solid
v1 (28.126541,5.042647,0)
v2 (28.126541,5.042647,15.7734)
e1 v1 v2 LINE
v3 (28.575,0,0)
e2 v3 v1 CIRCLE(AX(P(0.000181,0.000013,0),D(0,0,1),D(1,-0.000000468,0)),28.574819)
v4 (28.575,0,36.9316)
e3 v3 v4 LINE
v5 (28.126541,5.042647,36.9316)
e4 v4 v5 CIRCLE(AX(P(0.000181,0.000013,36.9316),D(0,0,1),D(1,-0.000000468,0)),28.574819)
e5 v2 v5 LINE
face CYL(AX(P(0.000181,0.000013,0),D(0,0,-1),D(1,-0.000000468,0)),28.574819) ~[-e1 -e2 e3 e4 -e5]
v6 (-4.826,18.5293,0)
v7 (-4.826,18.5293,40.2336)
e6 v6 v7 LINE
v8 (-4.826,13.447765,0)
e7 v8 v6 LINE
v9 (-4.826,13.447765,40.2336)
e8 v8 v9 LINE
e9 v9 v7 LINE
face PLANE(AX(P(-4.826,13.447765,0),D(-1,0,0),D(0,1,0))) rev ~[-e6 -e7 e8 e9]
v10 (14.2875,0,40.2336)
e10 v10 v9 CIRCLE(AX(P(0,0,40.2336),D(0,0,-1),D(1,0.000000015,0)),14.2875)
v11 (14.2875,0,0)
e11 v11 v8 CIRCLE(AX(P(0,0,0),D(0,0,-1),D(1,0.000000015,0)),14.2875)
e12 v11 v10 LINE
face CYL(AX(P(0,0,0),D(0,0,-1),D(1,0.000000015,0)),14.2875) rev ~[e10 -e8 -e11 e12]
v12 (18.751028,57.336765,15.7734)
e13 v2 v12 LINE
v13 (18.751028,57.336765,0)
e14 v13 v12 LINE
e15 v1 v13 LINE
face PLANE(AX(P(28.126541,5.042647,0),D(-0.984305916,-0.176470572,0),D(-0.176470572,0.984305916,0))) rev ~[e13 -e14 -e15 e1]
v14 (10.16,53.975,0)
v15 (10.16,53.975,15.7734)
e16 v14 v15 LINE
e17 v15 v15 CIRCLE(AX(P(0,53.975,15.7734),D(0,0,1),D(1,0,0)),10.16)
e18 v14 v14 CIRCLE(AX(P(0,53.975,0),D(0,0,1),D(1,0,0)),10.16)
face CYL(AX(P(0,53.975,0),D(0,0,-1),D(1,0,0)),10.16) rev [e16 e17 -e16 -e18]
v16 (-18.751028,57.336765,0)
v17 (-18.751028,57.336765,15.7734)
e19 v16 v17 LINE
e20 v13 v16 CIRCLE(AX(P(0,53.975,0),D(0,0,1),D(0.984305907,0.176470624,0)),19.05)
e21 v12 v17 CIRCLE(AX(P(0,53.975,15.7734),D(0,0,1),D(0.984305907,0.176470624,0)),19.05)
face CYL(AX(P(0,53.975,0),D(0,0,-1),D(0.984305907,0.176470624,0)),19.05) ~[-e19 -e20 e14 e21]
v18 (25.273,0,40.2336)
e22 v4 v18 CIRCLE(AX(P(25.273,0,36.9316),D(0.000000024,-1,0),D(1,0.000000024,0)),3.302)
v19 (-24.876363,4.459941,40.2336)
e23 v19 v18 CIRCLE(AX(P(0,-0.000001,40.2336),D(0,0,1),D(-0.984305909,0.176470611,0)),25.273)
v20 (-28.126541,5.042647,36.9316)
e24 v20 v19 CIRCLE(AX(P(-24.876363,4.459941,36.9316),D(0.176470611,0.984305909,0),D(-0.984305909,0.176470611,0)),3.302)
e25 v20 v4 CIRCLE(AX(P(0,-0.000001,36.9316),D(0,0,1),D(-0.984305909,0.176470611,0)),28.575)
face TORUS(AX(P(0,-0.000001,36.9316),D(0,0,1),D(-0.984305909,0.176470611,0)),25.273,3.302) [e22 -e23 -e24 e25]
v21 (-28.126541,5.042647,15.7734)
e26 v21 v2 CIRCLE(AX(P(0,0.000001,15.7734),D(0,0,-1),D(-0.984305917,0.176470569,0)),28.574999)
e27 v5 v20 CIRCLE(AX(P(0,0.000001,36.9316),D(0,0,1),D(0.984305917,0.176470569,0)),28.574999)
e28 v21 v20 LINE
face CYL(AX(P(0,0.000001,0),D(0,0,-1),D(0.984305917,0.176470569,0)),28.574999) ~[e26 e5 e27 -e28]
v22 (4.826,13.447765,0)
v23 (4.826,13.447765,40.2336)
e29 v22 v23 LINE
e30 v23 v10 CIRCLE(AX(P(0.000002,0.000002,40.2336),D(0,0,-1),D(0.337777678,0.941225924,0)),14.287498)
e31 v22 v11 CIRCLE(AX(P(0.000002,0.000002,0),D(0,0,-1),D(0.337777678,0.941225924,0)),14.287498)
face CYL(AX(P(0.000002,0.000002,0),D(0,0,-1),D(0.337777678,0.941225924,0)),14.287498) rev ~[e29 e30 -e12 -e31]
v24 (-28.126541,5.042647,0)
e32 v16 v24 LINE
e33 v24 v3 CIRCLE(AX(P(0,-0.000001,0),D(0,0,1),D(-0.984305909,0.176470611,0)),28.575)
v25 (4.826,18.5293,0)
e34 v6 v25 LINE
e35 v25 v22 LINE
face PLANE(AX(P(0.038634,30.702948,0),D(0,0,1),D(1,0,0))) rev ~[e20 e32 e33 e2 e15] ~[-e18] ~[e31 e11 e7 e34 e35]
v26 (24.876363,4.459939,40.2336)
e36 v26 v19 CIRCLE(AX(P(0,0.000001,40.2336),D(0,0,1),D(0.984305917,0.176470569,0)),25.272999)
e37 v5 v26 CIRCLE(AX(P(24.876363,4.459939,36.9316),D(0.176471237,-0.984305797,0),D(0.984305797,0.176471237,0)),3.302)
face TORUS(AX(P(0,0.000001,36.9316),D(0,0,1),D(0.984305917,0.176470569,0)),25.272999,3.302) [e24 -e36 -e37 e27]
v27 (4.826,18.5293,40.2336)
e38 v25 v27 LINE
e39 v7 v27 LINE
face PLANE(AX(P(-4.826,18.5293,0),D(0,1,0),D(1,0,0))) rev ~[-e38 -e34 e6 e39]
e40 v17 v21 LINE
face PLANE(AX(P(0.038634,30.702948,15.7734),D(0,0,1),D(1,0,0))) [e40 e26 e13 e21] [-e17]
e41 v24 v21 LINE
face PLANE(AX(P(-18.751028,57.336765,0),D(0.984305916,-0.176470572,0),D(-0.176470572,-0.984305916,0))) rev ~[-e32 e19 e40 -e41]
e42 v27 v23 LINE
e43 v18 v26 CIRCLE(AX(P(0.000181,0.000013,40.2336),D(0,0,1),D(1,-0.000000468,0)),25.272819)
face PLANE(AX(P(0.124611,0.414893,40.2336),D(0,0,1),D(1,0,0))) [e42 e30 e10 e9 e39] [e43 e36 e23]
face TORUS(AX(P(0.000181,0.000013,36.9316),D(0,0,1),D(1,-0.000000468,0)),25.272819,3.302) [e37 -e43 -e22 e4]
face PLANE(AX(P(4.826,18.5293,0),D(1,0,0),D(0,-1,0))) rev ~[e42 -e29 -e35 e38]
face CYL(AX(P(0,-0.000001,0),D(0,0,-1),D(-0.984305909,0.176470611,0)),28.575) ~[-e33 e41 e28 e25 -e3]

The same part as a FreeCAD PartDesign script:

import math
import FreeCAD as App
import Part
import Sketcher
Q = App.Units.Quantity


def edges_at(feature, points):
    """Names of the edges that pass closest to the given points."""
    edges = feature.Shape.Edges
    near = lambda p: min(range(len(edges)), key=lambda i: edges[i].distToShape(Part.Vertex(*p))[0])
    return sorted({f"Edge{near(p) + 1}" for p in points})

doc = App.newDocument("Part")
body = doc.addObject("PartDesign::Body", "Body")

# Sketch on XY plane
sketch1 = body.newObject("Sketcher::SketchObject", "Sketch")
sketch1.AttachmentSupport = (doc.getObject("XY_Plane"), [""])
sketch1.MapMode = "FlatFace"
sketch1.addGeometry([
    Part.ArcOfCircle(Part.Circle(App.Vector(0, -0.000001, 0), App.Vector(0, 0, 1), 28.575), math.radians(169.83575), math.radians(360.000001)),  # 0
    Part.ArcOfCircle(Part.Circle(App.Vector(0.000181, 0.000013, 0), App.Vector(0, 0, 1), 28.574819), math.radians(-0.000027), math.radians(10.164286)),  # 1
    Part.ArcOfCircle(Part.Circle(App.Vector(0, 0.000001, 0), App.Vector(0, 0, 1), 28.574999), math.radians(10.164248), math.radians(169.835752)),  # 2
    Part.LineSegment(App.Vector(4.826, 18.5293, 0), App.Vector(4.826, 13.447765, 0)),  # 3
    Part.ArcOfCircle(Part.Circle(App.Vector(0.000002, 0.000002, 0), App.Vector(0, 0, 1), 14.287498), math.radians(-0.000007), math.radians(70.258464)),  # 4
    Part.ArcOfCircle(Part.Circle(App.Vector(0, 0, 0), App.Vector(0, 0, 1), 14.2875), math.radians(109.741541), math.radians(360.000001)),  # 5
    Part.LineSegment(App.Vector(-4.826, 13.447765, 0), App.Vector(-4.826, 18.5293, 0)),  # 6
    Part.LineSegment(App.Vector(-4.826, 18.5293, 0), App.Vector(4.826, 18.5293, 0)),  # 7
], False)
sketch1.addConstraint([
    Sketcher.Constraint("Coincident", 0, 2, 1, 1),
    Sketcher.Constraint("Coincident", 1, 2, 2, 1),
    Sketcher.Constraint("Coincident", 2, 2, 0, 1),
    Sketcher.Constraint("Coincident", 3, 2, 4, 2),
    Sketcher.Constraint("Coincident", 4, 1, 5, 2),
    Sketcher.Constraint("Coincident", 5, 1, 6, 1),
    Sketcher.Constraint("Coincident", 6, 2, 7, 1),
    Sketcher.Constraint("Coincident", 7, 2, 3, 1),
    Sketcher.Constraint("Vertical", 3),
    Sketcher.Constraint("Vertical", 6),
    Sketcher.Constraint("Horizontal", 7),
    Sketcher.Constraint("Coincident", 0, 3, -1, 1),
    Sketcher.Constraint("Coincident", 2, 3, -1, 1),
    Sketcher.Constraint("Coincident", 4, 3, -1, 1),
    Sketcher.Constraint("Coincident", 5, 3, -1, 1),
    Sketcher.Constraint("PointOnObject", 0, 2, -1),
    Sketcher.Constraint("PointOnObject", 4, 1, -1),
    Sketcher.Constraint("Radius", 0, Q("1.125 in")),
    Sketcher.Constraint("Radius", 4, Q("0.5624999 in")),
    Sketcher.Constraint("DistanceX", 7, 1, 7, 2, Q("0.38 in")),
    Sketcher.Constraint("DistanceX", -1, 1, 3, 2, Q("0.19 in")),
    Sketcher.Constraint("Radius", 1, Q("28.574819 mm")),
    Sketcher.Constraint("DistanceY", -1, 1, 6, 2, Q("0.7295 in")),
    Sketcher.Constraint("DistanceX", -1, 1, 1, 2, Q("28.126541 mm")),
    Sketcher.Constraint("DistanceX", 2, 2, -1, 1, Q("28.126541 mm")),
])
pad1 = body.newObject("PartDesign::Pad", "Pad")
pad1.Profile = sketch1
pad1.Length = Q("1.584 in")
doc.recompute()

fillet = body.newObject("PartDesign::Fillet", "Fillet")
fillet.Base = (pad1, edges_at(pad1, [(-2.531, -28.463, 40.234)]))
fillet.Radius = Q("0.13 in")

# Sketch on XY plane
sketch2 = body.newObject("Sketcher::SketchObject", "Sketch001")
sketch2.AttachmentSupport = (doc.getObject("XY_Plane"), [""])
sketch2.MapMode = "FlatFace"
sketch2.addGeometry([
    Part.ArcOfCircle(Part.Circle(App.Vector(0, 0, 0), App.Vector(0, 0, 1), 29), math.radians(10), math.radians(170)),  # 0
    Part.LineSegment(App.Vector(28, 5, 0), App.Vector(19, 57, 0)),  # 1
    Part.ArcOfCircle(Part.Circle(App.Vector(0, 54, 0), App.Vector(0, 0, 1), 19), math.radians(10), math.radians(170)),  # 2
    Part.LineSegment(App.Vector(-19, 57, 0), App.Vector(-28, 5, 0)),  # 3
    Part.Circle(App.Vector(0, 54, 0), App.Vector(0, 0, 1), 10),  # 4
], False)
sketch2.addConstraint([
    Sketcher.Constraint("Tangent", 0, 1, 1, 1),
    Sketcher.Constraint("Tangent", 1, 2, 2, 1),
    Sketcher.Constraint("Tangent", 2, 2, 3, 1),
    Sketcher.Constraint("Tangent", 3, 2, 0, 2),
    Sketcher.Constraint("Coincident", 0, 3, -1, 1),
    Sketcher.Constraint("Coincident", 4, 3, 2, 3),
    Sketcher.Constraint("PointOnObject", 2, 3, -2),
    Sketcher.Constraint("Diameter", 4, Q("0.8 in")),
    Sketcher.Constraint("Radius", 2, Q("0.75 in")),
    Sketcher.Constraint("Radius", 0, Q("1.125 in")),
    Sketcher.Constraint("DistanceY", -1, 1, 2, 3, Q("2.125 in")),
])
pad2 = body.newObject("PartDesign::Pad", "Pad001")
pad2.Profile = sketch2
pad2.Length = Q("0.621 in")

doc.recompute()
